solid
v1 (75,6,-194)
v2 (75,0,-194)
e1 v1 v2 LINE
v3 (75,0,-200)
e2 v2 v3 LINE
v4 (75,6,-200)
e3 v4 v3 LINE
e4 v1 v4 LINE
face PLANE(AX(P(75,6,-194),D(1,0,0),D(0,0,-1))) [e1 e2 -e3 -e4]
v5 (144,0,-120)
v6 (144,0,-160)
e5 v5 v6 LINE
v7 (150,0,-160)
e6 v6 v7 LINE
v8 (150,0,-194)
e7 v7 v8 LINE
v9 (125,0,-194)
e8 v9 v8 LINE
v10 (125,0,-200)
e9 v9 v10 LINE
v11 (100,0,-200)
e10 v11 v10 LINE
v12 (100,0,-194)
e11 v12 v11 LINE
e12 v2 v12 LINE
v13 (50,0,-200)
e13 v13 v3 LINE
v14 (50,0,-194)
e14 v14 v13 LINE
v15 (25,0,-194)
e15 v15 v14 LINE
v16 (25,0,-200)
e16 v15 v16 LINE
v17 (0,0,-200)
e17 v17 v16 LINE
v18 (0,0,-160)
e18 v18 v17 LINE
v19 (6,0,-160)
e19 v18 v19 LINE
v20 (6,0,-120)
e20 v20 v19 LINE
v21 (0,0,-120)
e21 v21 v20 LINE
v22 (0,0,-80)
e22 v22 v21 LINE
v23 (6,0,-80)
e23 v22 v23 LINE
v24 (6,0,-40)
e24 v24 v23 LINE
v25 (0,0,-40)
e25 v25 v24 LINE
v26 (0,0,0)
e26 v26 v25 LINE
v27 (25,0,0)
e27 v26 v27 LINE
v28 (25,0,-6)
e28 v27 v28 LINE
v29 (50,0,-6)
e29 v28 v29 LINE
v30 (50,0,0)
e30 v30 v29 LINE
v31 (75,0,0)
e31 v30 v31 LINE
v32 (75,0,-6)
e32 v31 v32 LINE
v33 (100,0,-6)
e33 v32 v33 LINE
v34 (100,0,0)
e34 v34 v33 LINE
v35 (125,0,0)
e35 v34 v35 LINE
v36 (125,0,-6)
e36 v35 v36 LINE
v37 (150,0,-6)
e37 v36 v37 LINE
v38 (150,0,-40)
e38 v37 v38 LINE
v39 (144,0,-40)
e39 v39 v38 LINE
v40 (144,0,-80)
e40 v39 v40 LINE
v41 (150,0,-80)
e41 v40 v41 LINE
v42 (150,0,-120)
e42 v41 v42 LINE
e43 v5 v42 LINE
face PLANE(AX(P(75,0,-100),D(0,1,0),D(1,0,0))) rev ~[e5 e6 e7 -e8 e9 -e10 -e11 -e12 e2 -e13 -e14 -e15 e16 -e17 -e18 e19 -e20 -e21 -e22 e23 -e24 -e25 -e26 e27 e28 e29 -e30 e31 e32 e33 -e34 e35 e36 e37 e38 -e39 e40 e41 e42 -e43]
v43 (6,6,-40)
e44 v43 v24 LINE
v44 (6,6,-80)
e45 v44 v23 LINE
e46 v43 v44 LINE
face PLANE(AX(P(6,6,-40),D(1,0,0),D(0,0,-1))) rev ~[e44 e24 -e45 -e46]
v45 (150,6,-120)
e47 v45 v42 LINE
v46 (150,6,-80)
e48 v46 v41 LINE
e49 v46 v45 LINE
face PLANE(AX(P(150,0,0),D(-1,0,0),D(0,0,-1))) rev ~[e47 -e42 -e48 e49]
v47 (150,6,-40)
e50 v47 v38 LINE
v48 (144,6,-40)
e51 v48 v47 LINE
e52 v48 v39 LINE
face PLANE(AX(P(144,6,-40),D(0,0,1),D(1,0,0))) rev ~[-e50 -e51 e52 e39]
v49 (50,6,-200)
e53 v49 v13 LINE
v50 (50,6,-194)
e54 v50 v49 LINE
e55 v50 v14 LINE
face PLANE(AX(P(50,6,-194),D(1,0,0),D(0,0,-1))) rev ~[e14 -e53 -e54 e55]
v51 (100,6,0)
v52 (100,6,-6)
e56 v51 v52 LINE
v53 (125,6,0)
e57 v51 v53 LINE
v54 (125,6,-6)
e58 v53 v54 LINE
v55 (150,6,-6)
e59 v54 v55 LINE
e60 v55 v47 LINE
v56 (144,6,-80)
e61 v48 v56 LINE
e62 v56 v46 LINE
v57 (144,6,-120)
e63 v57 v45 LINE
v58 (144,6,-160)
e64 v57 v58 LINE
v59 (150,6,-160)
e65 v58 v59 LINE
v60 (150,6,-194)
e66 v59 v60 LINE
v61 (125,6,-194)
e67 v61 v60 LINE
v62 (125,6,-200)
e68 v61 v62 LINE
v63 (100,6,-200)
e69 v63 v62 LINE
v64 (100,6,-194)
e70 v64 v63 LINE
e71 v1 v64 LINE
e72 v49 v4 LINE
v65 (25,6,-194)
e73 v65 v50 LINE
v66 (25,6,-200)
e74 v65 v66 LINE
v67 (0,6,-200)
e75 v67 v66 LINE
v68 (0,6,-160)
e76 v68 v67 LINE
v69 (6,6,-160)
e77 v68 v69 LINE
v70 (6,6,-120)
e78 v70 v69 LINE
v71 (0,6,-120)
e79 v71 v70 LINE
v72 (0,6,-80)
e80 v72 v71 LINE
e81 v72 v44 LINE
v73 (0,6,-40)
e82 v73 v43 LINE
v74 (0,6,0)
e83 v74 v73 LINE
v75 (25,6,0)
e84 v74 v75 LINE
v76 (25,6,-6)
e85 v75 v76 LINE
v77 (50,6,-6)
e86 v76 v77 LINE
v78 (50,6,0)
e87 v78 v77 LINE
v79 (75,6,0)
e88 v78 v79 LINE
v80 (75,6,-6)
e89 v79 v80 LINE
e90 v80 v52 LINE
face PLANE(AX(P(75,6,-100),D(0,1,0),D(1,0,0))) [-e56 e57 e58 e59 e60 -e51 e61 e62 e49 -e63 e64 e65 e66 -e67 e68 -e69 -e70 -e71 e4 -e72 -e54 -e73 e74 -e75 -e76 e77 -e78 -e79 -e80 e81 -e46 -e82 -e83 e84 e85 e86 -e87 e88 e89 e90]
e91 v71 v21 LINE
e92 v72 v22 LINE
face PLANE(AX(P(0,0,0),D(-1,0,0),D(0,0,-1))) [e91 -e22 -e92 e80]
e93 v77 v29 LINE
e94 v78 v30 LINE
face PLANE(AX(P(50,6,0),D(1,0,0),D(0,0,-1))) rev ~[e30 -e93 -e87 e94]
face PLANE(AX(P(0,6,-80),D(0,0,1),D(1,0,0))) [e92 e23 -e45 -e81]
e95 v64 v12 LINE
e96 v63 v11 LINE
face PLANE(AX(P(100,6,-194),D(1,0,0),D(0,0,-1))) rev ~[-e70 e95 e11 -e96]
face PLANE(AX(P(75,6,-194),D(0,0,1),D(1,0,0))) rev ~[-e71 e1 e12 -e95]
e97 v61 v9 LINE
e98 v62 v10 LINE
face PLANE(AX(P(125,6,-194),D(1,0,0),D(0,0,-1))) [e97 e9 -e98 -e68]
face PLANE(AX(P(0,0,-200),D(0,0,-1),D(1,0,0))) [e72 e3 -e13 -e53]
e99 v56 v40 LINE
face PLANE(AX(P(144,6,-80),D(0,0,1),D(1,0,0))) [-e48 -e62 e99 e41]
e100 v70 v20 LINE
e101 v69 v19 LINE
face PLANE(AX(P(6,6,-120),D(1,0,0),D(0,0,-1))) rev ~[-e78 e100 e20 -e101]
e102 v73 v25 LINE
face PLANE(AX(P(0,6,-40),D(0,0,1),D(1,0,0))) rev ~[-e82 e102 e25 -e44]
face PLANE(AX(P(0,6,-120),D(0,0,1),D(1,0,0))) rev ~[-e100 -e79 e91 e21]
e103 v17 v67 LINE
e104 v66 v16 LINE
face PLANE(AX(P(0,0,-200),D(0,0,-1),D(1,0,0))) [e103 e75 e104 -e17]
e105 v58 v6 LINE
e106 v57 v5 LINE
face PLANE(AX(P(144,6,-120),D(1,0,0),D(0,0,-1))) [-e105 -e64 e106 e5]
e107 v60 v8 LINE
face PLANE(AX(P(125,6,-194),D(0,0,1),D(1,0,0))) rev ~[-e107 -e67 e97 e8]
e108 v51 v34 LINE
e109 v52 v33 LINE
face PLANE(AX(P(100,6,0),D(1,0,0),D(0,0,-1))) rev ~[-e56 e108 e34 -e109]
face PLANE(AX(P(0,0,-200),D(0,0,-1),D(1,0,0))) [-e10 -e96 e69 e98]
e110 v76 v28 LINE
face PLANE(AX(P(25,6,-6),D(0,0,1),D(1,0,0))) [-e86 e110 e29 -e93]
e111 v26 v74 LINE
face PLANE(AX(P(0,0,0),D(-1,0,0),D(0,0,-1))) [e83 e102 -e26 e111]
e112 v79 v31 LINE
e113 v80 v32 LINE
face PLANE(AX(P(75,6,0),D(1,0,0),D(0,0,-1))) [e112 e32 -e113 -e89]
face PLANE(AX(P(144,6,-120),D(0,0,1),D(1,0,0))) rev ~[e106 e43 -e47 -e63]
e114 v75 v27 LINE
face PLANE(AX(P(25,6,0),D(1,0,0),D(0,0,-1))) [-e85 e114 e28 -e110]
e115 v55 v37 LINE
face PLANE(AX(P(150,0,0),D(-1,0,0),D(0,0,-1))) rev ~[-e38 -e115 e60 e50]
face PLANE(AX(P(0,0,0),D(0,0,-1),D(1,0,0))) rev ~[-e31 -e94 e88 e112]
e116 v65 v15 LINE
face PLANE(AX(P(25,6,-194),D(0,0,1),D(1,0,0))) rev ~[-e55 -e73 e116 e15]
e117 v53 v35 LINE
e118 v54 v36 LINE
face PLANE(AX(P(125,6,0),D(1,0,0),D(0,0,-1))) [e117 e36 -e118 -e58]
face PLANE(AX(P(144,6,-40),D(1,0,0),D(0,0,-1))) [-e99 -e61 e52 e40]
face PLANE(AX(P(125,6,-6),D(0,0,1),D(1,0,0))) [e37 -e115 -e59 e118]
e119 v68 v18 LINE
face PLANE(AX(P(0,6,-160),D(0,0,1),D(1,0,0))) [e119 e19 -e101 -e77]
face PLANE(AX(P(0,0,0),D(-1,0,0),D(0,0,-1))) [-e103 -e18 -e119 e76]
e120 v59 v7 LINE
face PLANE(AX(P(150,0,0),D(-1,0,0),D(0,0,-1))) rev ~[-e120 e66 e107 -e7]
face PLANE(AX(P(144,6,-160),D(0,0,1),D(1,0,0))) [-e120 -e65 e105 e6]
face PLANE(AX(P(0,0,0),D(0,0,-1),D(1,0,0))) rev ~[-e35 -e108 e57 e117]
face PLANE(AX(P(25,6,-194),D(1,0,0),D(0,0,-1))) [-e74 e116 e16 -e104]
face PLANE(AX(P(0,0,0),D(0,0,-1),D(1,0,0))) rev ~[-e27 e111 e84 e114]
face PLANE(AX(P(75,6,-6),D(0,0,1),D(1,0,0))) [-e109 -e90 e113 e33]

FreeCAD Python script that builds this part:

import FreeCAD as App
import Part
import Sketcher
Q = App.Units.Quantity


def add_polygon(sketch, points):
    """Adds a closed chain of lines whose ends are joined by coincident constraints."""
    first, n = sketch.GeometryCount, len(points)
    for a, b in zip(points, points[1:] + points[:1]):
        sketch.addGeometry(Part.LineSegment(App.Vector(*a, 0), App.Vector(*b, 0)), False)
    for i in range(n):
        sketch.addConstraint(Sketcher.Constraint("Coincident", first + i, 2, first + (i + 1) % n, 1))

doc = App.newDocument("Part")
params = doc.addObject("Spreadsheet::Sheet", "Params")
for row, (alias, value) in enumerate([
    ("sketch1_width", "150 mm"),
    ("sketch1_height", "200 mm"),
    ("pad1_length", "6 mm"),
    ("sketch2_width", "25 mm"),
    ("sketch2_width2", "6 mm"),
    ("sketch2_height", "40 mm"),
    ("pocket1_length", "6 mm"),
], start=1):
    params.set(f"A{row}", alias)
    params.set(f"B{row}", "=" + value)
    params.setAlias(f"B{row}", alias)

body = doc.addObject("PartDesign::Body", "Body")

sketch1 = body.newObject("Sketcher::SketchObject", "Sketch")
sketch1.AttachmentSupport = (doc.getObject("XZ_Plane"), [""])
sketch1.MapMode = "FlatFace"
add_polygon(sketch1, [(0, -200), (0, 0), (150, 0), (150, -200)])
sketch1.addConstraint([
    Sketcher.Constraint("Vertical", 0),
    Sketcher.Constraint("Horizontal", 1),
    Sketcher.Constraint("Vertical", 2),
    Sketcher.Constraint("Horizontal", 3),
    Sketcher.Constraint("Coincident", 0, 2, -1, 1),
    Sketcher.Constraint("DistanceX", 1, 1, 1, 2, Q("150 mm")),
    Sketcher.Constraint("DistanceY", 0, 1, 0, 2, Q("200 mm")),
])
sketch1.setExpression("Constraints[9]", "Params.sketch1_width")
sketch1.setExpression("Constraints[10]", "Params.sketch1_height")
pad1 = body.newObject("PartDesign::Pad", "Pad")
pad1.Profile = sketch1
pad1.setExpression("Length", "Params.pad1_length")
pad1.Reversed = True

sketch2 = body.newObject("Sketcher::SketchObject", "Sketch001")
sketch2.AttachmentSupport = (doc.getObject("XZ_Plane"), [""])
sketch2.MapMode = "FlatFace"
sketch2.AttachmentOffset = App.Placement(App.Vector(0, 0, -6), App.Rotation())
add_polygon(sketch2, [(25, -6), (25, 0), (50, 0), (50, -6)])
add_polygon(sketch2, [(75, -6), (75, 0), (100, 0), (100, -6)])
add_polygon(sketch2, [(125, -6), (125, 0), (150, 0), (150, -6)])
add_polygon(sketch2, [(25, -200), (25, -194), (50, -194), (50, -200)])
add_polygon(sketch2, [(75, -200), (75, -194), (100, -194), (100, -200)])
add_polygon(sketch2, [(125, -200), (125, -194), (150, -194), (150, -200)])
add_polygon(sketch2, [(0, -160), (0, -120), (6, -120), (6, -160)])
add_polygon(sketch2, [(144, -160), (144, -120), (150, -120), (150, -160)])
add_polygon(sketch2, [(144, -80), (144, -40), (150, -40), (150, -80)])
add_polygon(sketch2, [(0, -80), (0, -40), (6, -40), (6, -80)])
sketch2.addConstraint([
    Sketcher.Constraint("Vertical", 0),
    Sketcher.Constraint("Horizontal", 1),
    Sketcher.Constraint("Vertical", 2),
    Sketcher.Constraint("Horizontal", 3),
    Sketcher.Constraint("Vertical", 4),
    Sketcher.Constraint("Horizontal", 5),
    Sketcher.Constraint("Vertical", 6),
    Sketcher.Constraint("Horizontal", 7),
    Sketcher.Constraint("Vertical", 8),
    Sketcher.Constraint("Horizontal", 9),
    Sketcher.Constraint("Vertical", 10),
    Sketcher.Constraint("Horizontal", 11),
    Sketcher.Constraint("Vertical", 12),
    Sketcher.Constraint("Horizontal", 13),
    Sketcher.Constraint("Vertical", 14),
    Sketcher.Constraint("Horizontal", 15),
    Sketcher.Constraint("Vertical", 16),
    Sketcher.Constraint("Horizontal", 17),
    Sketcher.Constraint("Vertical", 18),
    Sketcher.Constraint("Horizontal", 19),
    Sketcher.Constraint("Vertical", 20),
    Sketcher.Constraint("Horizontal", 21),
    Sketcher.Constraint("Vertical", 22),
    Sketcher.Constraint("Horizontal", 23),
    Sketcher.Constraint("Vertical", 24),
    Sketcher.Constraint("Horizontal", 25),
    Sketcher.Constraint("Vertical", 26),
    Sketcher.Constraint("Horizontal", 27),
    Sketcher.Constraint("Vertical", 28),
    Sketcher.Constraint("Horizontal", 29),
    Sketcher.Constraint("Vertical", 30),
    Sketcher.Constraint("Horizontal", 31),
    Sketcher.Constraint("Vertical", 32),
    Sketcher.Constraint("Horizontal", 33),
    Sketcher.Constraint("Vertical", 34),
    Sketcher.Constraint("Horizontal", 35),
    Sketcher.Constraint("Vertical", 36),
    Sketcher.Constraint("Horizontal", 37),
    Sketcher.Constraint("Vertical", 38),
    Sketcher.Constraint("Horizontal", 39),
    Sketcher.Constraint("PointOnObject", 0, 2, -1),
    Sketcher.Constraint("PointOnObject", 4, 2, -1),
    Sketcher.Constraint("PointOnObject", 8, 2, -1),
    Sketcher.Constraint("PointOnObject", 24, 2, -2),
    Sketcher.Constraint("PointOnObject", 36, 2, -2),
    Sketcher.Constraint("Horizontal", 3, 2, 6, 2),
    Sketcher.Constraint("Horizontal", 7, 2, 10, 2),
    Sketcher.Constraint("Horizontal", 13, 2, 16, 2),
    Sketcher.Constraint("Horizontal", 15, 2, 18, 2),
    Sketcher.Constraint("Horizontal", 17, 2, 20, 2),
    Sketcher.Constraint("Horizontal", 19, 2, 22, 2),
    Sketcher.Constraint("Horizontal", 25, 2, 28, 2),
    Sketcher.Constraint("Horizontal", 27, 2, 30, 2),
    Sketcher.Constraint("Horizontal", 33, 2, 36, 2),
    Sketcher.Constraint("Horizontal", 35, 2, 38, 2),
    Sketcher.Constraint("Vertical", 3, 2, 12, 2),
    Sketcher.Constraint("Vertical", 2, 2, 13, 2),
    Sketcher.Constraint("Vertical", 7, 2, 16, 2),
    Sketcher.Constraint("Vertical", 6, 2, 17, 2),
    Sketcher.Constraint("Vertical", 11, 2, 20, 2),
    Sketcher.Constraint("Vertical", 10, 2, 21, 2),
    Sketcher.Constraint("Vertical", 22, 2, 29, 2),
    Sketcher.Constraint("Vertical", 31, 2, 32, 2),
    Sketcher.Constraint("Vertical", 30, 2, 33, 2),
    Sketcher.Constraint("Vertical", 26, 2, 37, 2),
    Sketcher.Constraint("Equal", 3, 5),
    Sketcher.Constraint("Equal", 7, 9),
    Sketcher.Constraint("Equal", 27, 29),
    Sketcher.Constraint("Equal", 39, 0),
    Sketcher.Constraint("Equal", 10, 12),
    Sketcher.Constraint("Equal", 30, 32),
    Sketcher.Constraint("DistanceX", 1, 1, 1, 2, Q("25 mm")),
    Sketcher.Constraint("DistanceX", 25, 1, 25, 2, Q("6 mm")),
    Sketcher.Constraint("DistanceY", 24, 1, 24, 2, Q("40 mm")),
    Sketcher.Constraint("DistanceX", -1, 1, 0, 2, Q("25 mm")),
    Sketcher.Constraint("DistanceX", -1, 1, 4, 2, Q("75 mm")),
    Sketcher.Constraint("DistanceX", -1, 1, 8, 2, Q("125 mm")),
    Sketcher.Constraint("DistanceY", 12, 2, -1, 1, Q("194 mm")),
    Sketcher.Constraint("DistanceY", 24, 2, -1, 1, Q("120 mm")),
    Sketcher.Constraint("DistanceY", 32, 2, -1, 1, Q("40 mm")),
])
sketch2.setExpression("Constraints[111]", "Params.sketch2_width")
sketch2.setExpression("Constraints[112]", "Params.sketch2_width2")
sketch2.setExpression("Constraints[113]", "Params.sketch2_height")
pocket1 = body.newObject("PartDesign::Pocket", "Pocket")
pocket1.Profile = sketch2
pocket1.setExpression("Length", "Params.pocket1_length")
pocket1.Reversed = True

doc.recompute()
